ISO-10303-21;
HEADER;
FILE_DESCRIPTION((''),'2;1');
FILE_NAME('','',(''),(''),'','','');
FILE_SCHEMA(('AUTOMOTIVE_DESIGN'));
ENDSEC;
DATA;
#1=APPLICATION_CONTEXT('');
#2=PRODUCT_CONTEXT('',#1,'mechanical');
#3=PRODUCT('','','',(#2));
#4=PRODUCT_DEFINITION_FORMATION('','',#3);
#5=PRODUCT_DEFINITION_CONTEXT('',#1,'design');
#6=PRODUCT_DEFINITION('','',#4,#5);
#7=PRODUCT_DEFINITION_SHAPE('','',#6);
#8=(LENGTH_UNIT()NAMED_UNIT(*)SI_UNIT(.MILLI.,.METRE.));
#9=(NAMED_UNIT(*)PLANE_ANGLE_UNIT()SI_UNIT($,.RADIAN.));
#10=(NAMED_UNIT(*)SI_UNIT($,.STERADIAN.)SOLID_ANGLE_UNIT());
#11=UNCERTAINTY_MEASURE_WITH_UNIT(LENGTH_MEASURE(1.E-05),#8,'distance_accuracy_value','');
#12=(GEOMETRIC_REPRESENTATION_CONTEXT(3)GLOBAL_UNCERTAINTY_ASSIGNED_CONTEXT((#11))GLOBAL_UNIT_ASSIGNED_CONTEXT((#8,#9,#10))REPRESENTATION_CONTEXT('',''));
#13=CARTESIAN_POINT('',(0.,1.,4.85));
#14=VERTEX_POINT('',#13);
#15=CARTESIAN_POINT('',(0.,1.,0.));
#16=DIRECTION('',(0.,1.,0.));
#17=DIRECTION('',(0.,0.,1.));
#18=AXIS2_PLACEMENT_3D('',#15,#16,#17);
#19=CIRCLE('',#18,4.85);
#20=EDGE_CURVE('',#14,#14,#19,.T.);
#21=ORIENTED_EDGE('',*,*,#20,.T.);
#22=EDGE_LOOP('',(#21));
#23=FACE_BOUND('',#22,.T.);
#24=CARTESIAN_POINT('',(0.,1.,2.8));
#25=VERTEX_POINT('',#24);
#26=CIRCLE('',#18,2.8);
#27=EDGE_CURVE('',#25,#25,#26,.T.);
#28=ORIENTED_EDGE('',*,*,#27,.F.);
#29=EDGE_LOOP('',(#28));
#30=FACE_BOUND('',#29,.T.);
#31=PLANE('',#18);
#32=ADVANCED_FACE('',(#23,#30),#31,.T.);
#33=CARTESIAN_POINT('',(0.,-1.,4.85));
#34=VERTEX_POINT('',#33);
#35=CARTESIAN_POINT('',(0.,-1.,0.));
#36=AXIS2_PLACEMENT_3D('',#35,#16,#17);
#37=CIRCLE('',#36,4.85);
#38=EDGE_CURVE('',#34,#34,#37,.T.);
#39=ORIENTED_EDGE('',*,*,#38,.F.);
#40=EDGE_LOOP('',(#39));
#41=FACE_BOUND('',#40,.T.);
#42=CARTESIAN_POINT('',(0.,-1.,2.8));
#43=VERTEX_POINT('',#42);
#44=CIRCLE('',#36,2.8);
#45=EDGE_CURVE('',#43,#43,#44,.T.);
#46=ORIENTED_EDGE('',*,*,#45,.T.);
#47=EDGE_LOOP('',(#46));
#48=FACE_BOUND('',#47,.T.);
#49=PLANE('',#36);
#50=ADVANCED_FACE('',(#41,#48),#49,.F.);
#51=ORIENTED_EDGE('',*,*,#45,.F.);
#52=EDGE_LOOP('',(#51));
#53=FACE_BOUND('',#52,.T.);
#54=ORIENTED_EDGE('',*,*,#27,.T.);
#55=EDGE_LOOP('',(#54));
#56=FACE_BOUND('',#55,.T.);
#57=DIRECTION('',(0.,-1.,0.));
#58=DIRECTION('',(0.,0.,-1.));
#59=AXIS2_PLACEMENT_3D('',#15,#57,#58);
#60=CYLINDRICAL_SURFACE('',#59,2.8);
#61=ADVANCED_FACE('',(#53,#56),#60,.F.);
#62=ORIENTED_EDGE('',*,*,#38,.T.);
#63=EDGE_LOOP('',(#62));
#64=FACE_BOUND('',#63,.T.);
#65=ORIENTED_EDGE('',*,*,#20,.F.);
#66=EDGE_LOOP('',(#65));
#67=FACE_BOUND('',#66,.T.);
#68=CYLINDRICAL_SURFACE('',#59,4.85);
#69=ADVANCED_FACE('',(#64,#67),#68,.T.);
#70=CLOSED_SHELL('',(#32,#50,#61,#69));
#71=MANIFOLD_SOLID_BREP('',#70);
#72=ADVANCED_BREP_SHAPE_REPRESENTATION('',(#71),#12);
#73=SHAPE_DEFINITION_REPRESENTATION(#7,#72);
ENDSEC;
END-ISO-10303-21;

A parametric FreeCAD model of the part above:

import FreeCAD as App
import Part
import Sketcher
from FreeCAD import Vector

doc = App.newDocument("Part")
body = doc.addObject("PartDesign::Body", "Body")

sketch1 = doc.addObject("Sketcher::SketchObject", "Sketch")
body.addObject(sketch1)
sketch1.AttachmentSupport = (doc.XZ_Plane, [""])
sketch1.MapMode = "FlatFace"
sketch1.AttachmentOffset = App.Placement(Vector(0, 0, 1), App.Rotation())
sketch1.addGeometry([
    Part.Circle(Vector(0, 0, 0), Vector(0, 0, 1), 4.85),
    Part.Circle(Vector(0, 0, 0), Vector(0, 0, 1), 2.8),
], False)
sketch1.addConstraint([
    Sketcher.Constraint("Coincident", 0, 3, -1, 1),
    Sketcher.Constraint("Coincident", 1, 3, -1, 1),
    Sketcher.Constraint("Diameter", 0, 9.7),
    Sketcher.Constraint("Diameter", 1, 5.6),
])
pad1 = doc.addObject("PartDesign::Pad", "Pad")
body.addObject(pad1)
pad1.Profile = sketch1
pad1.Length = 2
pad1.Reversed = True

doc.recompute()
